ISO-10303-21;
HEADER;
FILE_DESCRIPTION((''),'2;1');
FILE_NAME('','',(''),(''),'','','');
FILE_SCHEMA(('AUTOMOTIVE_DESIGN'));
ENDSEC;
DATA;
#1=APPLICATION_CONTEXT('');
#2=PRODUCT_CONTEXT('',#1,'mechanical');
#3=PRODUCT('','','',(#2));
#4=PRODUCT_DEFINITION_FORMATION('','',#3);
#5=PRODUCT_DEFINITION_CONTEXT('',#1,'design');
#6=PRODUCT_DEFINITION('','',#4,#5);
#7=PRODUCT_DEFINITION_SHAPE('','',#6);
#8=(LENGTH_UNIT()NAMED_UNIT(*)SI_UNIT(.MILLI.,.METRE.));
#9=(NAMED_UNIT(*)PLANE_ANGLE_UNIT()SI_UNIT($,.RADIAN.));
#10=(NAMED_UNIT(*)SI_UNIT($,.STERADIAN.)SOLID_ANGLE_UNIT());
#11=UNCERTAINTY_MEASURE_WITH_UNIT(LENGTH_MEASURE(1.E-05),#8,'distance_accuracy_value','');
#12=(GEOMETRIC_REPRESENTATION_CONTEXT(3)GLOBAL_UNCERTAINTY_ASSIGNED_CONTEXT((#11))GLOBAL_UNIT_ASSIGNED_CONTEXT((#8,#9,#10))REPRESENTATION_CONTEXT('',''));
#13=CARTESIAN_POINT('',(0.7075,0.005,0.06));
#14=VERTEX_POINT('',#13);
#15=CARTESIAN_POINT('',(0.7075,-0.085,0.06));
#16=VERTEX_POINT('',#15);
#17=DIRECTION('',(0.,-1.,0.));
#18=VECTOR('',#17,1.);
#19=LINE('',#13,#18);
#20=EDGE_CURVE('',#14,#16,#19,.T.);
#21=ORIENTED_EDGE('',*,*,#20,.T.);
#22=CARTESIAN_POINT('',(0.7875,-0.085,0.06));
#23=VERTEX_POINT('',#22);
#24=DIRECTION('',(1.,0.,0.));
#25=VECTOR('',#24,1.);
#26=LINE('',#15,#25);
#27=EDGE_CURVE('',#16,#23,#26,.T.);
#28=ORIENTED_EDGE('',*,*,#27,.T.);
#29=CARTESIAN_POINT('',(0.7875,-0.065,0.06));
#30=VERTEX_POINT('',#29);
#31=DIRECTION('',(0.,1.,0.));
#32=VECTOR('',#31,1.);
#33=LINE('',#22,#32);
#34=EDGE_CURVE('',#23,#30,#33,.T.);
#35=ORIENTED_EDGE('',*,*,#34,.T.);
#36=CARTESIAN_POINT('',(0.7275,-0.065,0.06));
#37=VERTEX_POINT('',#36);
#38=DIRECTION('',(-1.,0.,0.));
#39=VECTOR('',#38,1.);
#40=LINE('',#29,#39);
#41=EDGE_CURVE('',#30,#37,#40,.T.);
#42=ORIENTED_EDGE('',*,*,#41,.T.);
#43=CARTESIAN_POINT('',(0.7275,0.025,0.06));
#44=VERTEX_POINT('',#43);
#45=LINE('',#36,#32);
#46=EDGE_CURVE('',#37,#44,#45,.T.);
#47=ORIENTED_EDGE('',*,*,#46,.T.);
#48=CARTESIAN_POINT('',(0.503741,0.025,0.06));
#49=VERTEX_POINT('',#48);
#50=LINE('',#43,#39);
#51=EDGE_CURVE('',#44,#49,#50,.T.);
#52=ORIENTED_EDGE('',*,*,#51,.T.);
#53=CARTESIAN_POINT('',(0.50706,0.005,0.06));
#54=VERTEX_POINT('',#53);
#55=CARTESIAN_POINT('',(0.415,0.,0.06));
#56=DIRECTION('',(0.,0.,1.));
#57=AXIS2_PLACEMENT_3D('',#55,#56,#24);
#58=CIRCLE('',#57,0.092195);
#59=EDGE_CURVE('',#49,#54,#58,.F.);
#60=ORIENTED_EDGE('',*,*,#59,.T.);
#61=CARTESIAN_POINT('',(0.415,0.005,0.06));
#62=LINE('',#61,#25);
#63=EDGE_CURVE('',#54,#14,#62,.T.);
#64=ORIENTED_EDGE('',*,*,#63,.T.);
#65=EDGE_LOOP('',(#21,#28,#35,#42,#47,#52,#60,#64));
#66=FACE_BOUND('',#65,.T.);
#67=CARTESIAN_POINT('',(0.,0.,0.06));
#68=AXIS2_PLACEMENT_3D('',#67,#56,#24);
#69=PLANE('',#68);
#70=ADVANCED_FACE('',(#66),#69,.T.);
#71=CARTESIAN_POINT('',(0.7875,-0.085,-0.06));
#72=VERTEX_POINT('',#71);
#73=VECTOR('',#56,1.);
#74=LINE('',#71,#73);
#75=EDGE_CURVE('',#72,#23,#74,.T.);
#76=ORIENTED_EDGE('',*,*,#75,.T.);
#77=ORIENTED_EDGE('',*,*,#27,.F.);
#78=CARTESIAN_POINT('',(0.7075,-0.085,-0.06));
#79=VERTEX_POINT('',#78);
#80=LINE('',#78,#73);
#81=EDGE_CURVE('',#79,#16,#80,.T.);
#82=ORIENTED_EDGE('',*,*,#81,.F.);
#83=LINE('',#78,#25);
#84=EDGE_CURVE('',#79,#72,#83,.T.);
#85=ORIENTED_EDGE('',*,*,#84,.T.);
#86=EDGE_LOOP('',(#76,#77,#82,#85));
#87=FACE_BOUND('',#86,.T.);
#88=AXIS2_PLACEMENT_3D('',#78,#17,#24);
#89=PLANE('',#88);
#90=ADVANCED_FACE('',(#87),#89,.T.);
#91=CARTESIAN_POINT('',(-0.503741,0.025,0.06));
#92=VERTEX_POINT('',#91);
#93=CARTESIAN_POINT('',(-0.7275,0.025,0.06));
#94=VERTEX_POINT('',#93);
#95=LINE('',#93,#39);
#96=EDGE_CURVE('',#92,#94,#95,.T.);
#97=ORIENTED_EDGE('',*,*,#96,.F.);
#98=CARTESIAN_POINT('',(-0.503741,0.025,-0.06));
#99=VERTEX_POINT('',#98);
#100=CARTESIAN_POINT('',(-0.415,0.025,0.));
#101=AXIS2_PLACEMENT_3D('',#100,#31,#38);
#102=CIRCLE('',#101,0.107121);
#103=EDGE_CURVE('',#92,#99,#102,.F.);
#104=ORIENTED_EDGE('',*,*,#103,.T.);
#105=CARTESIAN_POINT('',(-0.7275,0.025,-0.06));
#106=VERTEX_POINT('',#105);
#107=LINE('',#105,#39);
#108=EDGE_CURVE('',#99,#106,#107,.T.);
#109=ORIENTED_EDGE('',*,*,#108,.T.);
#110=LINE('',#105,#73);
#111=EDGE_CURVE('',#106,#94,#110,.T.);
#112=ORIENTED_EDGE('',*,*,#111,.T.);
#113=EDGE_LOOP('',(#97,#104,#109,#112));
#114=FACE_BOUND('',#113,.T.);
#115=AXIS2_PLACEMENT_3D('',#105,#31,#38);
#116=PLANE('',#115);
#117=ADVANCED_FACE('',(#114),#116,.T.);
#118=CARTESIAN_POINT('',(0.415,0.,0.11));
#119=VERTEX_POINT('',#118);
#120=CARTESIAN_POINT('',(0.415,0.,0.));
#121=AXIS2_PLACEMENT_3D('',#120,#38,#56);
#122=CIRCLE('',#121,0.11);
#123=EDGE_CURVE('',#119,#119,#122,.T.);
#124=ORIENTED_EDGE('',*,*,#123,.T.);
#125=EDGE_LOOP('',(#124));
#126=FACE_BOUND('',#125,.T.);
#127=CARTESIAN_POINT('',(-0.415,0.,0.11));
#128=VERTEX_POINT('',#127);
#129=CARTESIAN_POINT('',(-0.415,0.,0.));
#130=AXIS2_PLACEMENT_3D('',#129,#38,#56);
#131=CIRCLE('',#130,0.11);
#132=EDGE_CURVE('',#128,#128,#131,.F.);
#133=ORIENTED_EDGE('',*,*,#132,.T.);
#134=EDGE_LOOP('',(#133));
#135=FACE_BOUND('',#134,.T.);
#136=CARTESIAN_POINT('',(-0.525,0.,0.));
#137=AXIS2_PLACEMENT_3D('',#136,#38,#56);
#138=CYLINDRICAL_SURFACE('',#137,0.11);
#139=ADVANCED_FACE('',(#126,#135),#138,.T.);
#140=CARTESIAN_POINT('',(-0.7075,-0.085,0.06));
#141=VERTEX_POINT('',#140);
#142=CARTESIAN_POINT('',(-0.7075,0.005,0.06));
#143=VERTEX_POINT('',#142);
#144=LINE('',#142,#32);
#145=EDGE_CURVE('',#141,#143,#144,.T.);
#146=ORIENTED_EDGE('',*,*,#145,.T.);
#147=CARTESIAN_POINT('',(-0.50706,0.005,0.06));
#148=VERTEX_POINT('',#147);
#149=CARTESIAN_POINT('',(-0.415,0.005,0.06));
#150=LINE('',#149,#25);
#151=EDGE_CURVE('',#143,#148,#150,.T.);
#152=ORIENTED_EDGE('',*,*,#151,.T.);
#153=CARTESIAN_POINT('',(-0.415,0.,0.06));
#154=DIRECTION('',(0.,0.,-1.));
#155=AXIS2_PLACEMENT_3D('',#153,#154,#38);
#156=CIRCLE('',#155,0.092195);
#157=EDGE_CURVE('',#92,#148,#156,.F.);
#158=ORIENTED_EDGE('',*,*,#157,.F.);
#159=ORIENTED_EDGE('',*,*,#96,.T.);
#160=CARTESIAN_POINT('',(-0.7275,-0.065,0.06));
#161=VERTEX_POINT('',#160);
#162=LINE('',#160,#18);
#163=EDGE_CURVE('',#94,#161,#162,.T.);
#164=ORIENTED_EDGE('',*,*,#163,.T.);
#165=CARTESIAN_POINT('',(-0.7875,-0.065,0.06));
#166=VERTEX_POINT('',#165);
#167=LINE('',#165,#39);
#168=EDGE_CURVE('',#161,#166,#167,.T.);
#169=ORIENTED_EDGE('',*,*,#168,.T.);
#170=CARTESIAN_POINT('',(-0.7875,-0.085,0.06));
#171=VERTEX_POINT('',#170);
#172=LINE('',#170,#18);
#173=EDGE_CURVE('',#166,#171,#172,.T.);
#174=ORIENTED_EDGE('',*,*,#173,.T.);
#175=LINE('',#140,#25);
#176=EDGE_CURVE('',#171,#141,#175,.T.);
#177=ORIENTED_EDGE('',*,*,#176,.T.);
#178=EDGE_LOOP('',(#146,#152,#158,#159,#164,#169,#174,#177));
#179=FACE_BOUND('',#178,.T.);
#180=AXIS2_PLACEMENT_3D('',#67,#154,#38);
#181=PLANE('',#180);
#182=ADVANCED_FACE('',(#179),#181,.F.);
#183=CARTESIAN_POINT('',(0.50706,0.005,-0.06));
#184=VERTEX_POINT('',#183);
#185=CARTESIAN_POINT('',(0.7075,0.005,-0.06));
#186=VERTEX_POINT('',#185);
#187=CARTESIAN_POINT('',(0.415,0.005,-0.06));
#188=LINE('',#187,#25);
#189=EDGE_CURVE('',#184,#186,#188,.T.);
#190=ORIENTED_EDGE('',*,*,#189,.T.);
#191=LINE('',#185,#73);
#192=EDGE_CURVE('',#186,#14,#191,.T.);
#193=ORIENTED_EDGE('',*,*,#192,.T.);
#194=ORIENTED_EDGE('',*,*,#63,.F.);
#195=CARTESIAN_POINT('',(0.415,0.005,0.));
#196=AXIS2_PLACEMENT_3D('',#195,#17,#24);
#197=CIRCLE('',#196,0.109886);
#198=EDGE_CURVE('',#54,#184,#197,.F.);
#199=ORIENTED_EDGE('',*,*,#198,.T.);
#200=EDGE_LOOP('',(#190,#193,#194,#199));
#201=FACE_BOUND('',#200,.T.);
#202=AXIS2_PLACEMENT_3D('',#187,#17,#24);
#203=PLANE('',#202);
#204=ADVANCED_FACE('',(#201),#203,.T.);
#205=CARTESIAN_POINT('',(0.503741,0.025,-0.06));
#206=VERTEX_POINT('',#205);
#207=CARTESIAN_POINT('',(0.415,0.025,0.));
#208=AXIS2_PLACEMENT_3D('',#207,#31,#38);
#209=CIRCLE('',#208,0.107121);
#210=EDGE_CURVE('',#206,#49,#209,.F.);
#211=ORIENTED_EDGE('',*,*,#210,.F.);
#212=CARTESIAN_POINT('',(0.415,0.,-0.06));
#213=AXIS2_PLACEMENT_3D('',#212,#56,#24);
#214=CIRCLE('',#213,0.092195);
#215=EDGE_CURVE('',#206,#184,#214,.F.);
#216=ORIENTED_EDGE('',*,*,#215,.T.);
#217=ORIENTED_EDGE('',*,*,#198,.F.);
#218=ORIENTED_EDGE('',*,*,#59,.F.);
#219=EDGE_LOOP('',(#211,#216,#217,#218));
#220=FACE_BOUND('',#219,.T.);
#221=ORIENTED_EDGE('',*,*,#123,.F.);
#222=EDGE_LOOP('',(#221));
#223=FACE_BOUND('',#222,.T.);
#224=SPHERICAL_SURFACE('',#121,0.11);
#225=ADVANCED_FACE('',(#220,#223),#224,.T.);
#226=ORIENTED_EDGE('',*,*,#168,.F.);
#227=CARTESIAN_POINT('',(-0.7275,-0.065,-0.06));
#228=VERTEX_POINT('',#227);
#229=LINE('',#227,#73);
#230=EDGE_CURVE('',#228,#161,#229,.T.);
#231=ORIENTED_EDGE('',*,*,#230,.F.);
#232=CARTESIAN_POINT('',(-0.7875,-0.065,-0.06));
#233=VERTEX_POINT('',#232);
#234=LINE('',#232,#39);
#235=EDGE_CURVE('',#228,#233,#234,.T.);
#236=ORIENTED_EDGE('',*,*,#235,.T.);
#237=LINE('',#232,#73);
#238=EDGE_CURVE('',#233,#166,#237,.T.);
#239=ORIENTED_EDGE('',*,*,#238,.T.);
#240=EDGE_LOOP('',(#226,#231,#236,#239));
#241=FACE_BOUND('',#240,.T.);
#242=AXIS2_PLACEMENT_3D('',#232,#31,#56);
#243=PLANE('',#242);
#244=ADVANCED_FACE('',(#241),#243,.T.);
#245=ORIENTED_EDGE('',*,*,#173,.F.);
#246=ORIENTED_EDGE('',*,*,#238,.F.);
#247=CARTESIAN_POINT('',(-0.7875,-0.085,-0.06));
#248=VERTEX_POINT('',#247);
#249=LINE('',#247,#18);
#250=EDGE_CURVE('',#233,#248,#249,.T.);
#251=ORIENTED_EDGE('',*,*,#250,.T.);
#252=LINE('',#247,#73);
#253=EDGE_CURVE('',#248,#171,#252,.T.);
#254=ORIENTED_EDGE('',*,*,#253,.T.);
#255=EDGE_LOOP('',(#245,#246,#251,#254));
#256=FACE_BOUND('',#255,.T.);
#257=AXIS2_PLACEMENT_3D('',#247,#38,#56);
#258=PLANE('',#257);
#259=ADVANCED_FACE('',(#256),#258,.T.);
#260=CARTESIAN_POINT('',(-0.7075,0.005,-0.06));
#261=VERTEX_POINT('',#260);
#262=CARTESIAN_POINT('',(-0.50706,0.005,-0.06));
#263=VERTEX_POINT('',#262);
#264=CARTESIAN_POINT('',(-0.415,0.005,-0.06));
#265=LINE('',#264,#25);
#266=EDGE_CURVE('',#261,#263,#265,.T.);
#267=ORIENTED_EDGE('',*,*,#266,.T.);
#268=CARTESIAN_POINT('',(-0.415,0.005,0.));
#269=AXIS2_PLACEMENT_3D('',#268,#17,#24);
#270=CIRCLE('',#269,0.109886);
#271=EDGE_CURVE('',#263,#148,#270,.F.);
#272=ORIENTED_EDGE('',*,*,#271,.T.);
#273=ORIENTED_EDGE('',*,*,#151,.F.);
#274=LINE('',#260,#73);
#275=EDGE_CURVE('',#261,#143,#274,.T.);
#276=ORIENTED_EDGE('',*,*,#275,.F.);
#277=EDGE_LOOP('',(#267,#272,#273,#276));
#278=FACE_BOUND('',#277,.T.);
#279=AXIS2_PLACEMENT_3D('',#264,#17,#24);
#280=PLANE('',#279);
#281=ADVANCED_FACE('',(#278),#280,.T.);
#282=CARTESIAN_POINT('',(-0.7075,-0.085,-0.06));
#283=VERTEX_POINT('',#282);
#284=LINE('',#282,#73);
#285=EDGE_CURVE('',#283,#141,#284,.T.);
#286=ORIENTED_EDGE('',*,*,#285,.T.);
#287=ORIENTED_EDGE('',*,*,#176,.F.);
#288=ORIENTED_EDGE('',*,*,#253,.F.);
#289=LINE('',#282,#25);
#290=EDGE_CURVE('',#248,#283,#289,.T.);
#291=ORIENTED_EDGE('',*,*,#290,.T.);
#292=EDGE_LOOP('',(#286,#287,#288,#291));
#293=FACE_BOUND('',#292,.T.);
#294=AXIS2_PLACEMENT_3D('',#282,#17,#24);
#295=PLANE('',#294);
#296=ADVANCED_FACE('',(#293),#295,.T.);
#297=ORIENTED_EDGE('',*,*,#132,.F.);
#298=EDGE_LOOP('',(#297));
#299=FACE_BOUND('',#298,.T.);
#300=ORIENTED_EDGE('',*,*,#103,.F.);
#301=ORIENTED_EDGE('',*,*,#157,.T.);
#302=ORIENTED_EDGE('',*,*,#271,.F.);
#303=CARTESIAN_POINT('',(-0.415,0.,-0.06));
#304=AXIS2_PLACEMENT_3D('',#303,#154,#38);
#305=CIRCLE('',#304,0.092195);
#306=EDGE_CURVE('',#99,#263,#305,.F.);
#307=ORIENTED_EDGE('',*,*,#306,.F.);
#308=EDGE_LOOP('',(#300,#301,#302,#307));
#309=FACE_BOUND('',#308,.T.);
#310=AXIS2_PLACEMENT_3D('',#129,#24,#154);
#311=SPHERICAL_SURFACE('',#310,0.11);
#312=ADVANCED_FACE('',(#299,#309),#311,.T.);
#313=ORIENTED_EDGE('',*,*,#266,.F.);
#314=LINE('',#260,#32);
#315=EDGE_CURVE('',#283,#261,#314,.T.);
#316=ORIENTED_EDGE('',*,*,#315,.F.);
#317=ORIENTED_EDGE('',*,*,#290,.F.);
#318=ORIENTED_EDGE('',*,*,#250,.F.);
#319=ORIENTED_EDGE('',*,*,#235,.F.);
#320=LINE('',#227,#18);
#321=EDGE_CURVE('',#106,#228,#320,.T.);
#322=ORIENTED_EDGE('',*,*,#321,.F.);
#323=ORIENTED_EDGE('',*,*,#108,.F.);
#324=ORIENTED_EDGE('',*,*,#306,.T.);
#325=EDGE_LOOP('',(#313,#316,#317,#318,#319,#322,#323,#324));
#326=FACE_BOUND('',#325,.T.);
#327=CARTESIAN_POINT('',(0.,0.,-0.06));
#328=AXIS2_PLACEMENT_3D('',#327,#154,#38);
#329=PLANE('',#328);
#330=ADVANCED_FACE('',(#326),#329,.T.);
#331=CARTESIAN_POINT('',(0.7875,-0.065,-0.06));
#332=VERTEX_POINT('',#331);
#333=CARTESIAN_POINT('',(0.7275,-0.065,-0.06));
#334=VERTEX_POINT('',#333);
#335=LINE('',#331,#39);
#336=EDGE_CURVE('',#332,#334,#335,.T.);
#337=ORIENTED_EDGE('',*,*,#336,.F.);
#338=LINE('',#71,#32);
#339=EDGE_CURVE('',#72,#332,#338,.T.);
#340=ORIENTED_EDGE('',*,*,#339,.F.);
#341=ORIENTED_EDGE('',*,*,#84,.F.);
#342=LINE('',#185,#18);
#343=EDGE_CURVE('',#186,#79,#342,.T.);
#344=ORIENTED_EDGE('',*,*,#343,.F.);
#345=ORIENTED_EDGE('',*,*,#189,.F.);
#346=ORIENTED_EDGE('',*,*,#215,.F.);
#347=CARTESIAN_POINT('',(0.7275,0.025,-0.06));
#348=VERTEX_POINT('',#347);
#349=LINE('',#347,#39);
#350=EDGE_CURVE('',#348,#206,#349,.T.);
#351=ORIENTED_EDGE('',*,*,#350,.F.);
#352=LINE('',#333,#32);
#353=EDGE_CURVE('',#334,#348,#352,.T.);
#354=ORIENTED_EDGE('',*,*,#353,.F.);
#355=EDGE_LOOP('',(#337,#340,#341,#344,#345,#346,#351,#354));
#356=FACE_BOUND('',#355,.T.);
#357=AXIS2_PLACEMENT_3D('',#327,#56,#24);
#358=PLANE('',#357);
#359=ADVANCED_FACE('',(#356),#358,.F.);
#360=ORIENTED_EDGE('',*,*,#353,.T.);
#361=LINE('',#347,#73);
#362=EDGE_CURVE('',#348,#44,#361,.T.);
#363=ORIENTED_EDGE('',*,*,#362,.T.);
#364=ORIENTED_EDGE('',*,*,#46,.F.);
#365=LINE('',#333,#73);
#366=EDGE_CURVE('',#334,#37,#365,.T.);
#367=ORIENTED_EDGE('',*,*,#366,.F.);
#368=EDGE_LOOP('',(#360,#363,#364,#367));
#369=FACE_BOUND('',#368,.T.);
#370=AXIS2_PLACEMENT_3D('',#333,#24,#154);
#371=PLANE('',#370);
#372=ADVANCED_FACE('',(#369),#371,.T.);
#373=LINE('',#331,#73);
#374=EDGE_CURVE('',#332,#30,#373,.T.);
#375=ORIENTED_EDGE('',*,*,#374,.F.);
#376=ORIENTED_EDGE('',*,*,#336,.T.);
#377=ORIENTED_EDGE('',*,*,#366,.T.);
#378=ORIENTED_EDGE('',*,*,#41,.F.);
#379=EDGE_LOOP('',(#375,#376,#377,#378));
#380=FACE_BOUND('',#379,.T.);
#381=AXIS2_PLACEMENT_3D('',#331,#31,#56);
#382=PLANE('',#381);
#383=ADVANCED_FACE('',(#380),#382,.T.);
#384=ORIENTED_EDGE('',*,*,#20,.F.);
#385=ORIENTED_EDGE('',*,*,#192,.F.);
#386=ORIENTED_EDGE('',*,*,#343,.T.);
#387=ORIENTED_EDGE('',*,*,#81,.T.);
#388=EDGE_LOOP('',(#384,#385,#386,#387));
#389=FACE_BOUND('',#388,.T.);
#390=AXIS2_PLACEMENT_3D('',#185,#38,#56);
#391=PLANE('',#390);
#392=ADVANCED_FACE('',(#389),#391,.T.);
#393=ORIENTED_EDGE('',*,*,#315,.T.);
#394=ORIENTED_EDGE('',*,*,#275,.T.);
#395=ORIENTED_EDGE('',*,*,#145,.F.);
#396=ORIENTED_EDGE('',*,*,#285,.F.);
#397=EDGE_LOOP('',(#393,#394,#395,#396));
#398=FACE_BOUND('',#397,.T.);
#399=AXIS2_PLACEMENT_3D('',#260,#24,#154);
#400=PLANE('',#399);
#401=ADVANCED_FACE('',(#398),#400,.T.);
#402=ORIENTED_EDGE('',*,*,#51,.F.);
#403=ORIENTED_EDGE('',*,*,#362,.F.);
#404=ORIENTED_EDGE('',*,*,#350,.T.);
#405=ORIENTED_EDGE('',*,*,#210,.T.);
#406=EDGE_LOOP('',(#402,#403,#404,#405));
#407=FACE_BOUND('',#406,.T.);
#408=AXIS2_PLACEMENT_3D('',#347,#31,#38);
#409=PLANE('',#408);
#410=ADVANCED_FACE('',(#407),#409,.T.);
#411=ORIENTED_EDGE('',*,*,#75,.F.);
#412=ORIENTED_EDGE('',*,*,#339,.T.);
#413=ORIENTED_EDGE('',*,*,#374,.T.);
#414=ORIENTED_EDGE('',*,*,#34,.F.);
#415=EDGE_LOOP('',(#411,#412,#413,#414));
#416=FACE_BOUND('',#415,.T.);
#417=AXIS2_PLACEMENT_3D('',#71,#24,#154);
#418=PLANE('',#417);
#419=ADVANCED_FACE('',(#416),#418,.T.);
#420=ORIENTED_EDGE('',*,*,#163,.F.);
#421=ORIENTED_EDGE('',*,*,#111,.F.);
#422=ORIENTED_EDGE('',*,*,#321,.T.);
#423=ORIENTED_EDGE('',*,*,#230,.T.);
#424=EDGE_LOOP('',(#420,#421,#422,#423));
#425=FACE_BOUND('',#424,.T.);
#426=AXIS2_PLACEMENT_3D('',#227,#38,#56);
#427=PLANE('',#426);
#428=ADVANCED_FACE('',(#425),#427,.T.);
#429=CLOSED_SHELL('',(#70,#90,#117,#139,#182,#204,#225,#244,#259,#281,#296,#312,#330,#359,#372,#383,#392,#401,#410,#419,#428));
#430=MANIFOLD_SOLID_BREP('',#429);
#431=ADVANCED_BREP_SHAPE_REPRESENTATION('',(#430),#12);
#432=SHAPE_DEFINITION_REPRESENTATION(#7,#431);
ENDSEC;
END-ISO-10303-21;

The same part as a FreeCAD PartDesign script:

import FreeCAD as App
import Part
import Sketcher

V = App.Vector


def edges_at(feature, points):
    """Names of the edges that pass closest to the given points."""
    edges = feature.Shape.Edges
    near = lambda p: min(range(len(edges)), key=lambda i: edges[i].distToShape(Part.Vertex(*p))[0])
    return sorted({f"Edge{near(p) + 1}" for p in points})


def add_polygon(sketch, points):
    """Adds a closed chain of lines whose ends are joined by coincident constraints."""
    first, n = sketch.GeometryCount, len(points)
    for a, b in zip(points, points[1:] + points[:1]):
        sketch.addGeometry(Part.LineSegment(App.Vector(*a, 0), App.Vector(*b, 0)), False)
    for i in range(n):
        sketch.addConstraint(Sketcher.Constraint("Coincident", first + i, 2, first + (i + 1) % n, 1))

doc = App.newDocument("Part")
body = doc.addObject("PartDesign::Body", "Body")

# Sketch on XZ plane
sketch1 = body.newObject("Sketcher::SketchObject", "Sketch")
sketch1.AttachmentSupport = (doc.getObject("XZ_Plane"), [""])
sketch1.MapMode = "FlatFace"
add_polygon(sketch1, [(-0.53, -0.11), (-0.53, 0), (0.53, 0), (0.53, -0.11)])  # lines 0-3
sketch1.addConstraint(Sketcher.Constraint("Vertical", 0))
sketch1.addConstraint(Sketcher.Constraint("Horizontal", 1))
sketch1.addConstraint(Sketcher.Constraint("Vertical", 2))
sketch1.addConstraint(Sketcher.Constraint("Horizontal", 3))
sketch1.addConstraint(Sketcher.Constraint("Symmetric", 0, 2, 1, 2, -1, 1))
sketch1.addConstraint(Sketcher.Constraint("DistanceX", 1, 1, 1, 2, 1.05))
sketch1.addConstraint(Sketcher.Constraint("DistanceY", 0, 1, 0, 2, 0.11))
revolution = body.newObject("PartDesign::Revolution", "Revolution")
revolution.Profile = sketch1
revolution.ReferenceAxis = (sketch1, ["H_Axis"])
revolution.Angle = 360
doc.recompute()

fillet = body.newObject("PartDesign::Fillet", "Fillet")
fillet.Base = (revolution, edges_at(revolution, [(-0.525, 0, -0.11), (0.525, 0, -0.11)]))
fillet.Radius = 0.11

# Sketch on XY plane
sketch2 = body.newObject("Sketcher::SketchObject", "Sketch001")
sketch2.AttachmentSupport = (doc.getObject("XY_Plane"), [""])
sketch2.MapMode = "FlatFace"
add_polygon(sketch2, [(-0.787, -0.085), (-0.708, -0.085), (-0.708, 0.005), (-0.415, 0.005), (-0.415, 0.025), (-0.728, 0.025), (-0.728, -0.065), (-0.787, -0.065)])  # lines 0-7
add_polygon(sketch2, [(0.415, 0.005), (0.708, 0.005), (0.708, -0.085), (0.787, -0.085), (0.787, -0.065), (0.728, -0.065), (0.728, 0.025), (0.415, 0.025)])  # lines 8-15
sketch2.addConstraint(Sketcher.Constraint("Horizontal", 0))
sketch2.addConstraint(Sketcher.Constraint("Vertical", 1))
sketch2.addConstraint(Sketcher.Constraint("Horizontal", 2))
sketch2.addConstraint(Sketcher.Constraint("Vertical", 3))
sketch2.addConstraint(Sketcher.Constraint("Horizontal", 4))
sketch2.addConstraint(Sketcher.Constraint("Vertical", 5))
sketch2.addConstraint(Sketcher.Constraint("Horizontal", 6))
sketch2.addConstraint(Sketcher.Constraint("Vertical", 7))
sketch2.addConstraint(Sketcher.Constraint("Horizontal", 8))
sketch2.addConstraint(Sketcher.Constraint("Vertical", 9))
sketch2.addConstraint(Sketcher.Constraint("Horizontal", 10))
sketch2.addConstraint(Sketcher.Constraint("Vertical", 11))
sketch2.addConstraint(Sketcher.Constraint("Horizontal", 12))
sketch2.addConstraint(Sketcher.Constraint("Vertical", 13))
sketch2.addConstraint(Sketcher.Constraint("Horizontal", 14))
sketch2.addConstraint(Sketcher.Constraint("Vertical", 15))
sketch2.addConstraint(Sketcher.Constraint("Symmetric", 1, 2, 8, 2, -2))
sketch2.addConstraint(Sketcher.Constraint("Symmetric", 7, 2, 10, 2, -2))
sketch2.addConstraint(Sketcher.Constraint("Symmetric", 5, 2, 12, 2, -2))
sketch2.addConstraint(Sketcher.Constraint("Symmetric", 3, 2, 14, 2, -2))
sketch2.addConstraint(Sketcher.Constraint("Equal", 1, 5))
sketch2.addConstraint(Sketcher.Constraint("DistanceX", 0, 1, 0, 2, 0.08))
sketch2.addConstraint(Sketcher.Constraint("DistanceX", 6, 2, 6, 1, 0.06))
sketch2.addConstraint(Sketcher.Constraint("DistanceY", 1, 1, 1, 2, 0.09))
sketch2.addConstraint(Sketcher.Constraint("DistanceY", 3, 1, 3, 2, 0.02))
sketch2.addConstraint(Sketcher.Constraint("DistanceX", 2, 1, 2, 2, 0.2925))
sketch2.addConstraint(Sketcher.Constraint("DistanceY", 0, 2, -1, 1, 0.085))
sketch2.addConstraint(Sketcher.Constraint("DistanceX", 2, 2, -1, 1, 0.415))
pad1 = body.newObject("PartDesign::Pad", "Pad")
pad1.Profile = sketch2
pad1.Type = "TwoLengths"
pad1.Length = 0.06
pad1.Length2 = 0.06

doc.recompute()
